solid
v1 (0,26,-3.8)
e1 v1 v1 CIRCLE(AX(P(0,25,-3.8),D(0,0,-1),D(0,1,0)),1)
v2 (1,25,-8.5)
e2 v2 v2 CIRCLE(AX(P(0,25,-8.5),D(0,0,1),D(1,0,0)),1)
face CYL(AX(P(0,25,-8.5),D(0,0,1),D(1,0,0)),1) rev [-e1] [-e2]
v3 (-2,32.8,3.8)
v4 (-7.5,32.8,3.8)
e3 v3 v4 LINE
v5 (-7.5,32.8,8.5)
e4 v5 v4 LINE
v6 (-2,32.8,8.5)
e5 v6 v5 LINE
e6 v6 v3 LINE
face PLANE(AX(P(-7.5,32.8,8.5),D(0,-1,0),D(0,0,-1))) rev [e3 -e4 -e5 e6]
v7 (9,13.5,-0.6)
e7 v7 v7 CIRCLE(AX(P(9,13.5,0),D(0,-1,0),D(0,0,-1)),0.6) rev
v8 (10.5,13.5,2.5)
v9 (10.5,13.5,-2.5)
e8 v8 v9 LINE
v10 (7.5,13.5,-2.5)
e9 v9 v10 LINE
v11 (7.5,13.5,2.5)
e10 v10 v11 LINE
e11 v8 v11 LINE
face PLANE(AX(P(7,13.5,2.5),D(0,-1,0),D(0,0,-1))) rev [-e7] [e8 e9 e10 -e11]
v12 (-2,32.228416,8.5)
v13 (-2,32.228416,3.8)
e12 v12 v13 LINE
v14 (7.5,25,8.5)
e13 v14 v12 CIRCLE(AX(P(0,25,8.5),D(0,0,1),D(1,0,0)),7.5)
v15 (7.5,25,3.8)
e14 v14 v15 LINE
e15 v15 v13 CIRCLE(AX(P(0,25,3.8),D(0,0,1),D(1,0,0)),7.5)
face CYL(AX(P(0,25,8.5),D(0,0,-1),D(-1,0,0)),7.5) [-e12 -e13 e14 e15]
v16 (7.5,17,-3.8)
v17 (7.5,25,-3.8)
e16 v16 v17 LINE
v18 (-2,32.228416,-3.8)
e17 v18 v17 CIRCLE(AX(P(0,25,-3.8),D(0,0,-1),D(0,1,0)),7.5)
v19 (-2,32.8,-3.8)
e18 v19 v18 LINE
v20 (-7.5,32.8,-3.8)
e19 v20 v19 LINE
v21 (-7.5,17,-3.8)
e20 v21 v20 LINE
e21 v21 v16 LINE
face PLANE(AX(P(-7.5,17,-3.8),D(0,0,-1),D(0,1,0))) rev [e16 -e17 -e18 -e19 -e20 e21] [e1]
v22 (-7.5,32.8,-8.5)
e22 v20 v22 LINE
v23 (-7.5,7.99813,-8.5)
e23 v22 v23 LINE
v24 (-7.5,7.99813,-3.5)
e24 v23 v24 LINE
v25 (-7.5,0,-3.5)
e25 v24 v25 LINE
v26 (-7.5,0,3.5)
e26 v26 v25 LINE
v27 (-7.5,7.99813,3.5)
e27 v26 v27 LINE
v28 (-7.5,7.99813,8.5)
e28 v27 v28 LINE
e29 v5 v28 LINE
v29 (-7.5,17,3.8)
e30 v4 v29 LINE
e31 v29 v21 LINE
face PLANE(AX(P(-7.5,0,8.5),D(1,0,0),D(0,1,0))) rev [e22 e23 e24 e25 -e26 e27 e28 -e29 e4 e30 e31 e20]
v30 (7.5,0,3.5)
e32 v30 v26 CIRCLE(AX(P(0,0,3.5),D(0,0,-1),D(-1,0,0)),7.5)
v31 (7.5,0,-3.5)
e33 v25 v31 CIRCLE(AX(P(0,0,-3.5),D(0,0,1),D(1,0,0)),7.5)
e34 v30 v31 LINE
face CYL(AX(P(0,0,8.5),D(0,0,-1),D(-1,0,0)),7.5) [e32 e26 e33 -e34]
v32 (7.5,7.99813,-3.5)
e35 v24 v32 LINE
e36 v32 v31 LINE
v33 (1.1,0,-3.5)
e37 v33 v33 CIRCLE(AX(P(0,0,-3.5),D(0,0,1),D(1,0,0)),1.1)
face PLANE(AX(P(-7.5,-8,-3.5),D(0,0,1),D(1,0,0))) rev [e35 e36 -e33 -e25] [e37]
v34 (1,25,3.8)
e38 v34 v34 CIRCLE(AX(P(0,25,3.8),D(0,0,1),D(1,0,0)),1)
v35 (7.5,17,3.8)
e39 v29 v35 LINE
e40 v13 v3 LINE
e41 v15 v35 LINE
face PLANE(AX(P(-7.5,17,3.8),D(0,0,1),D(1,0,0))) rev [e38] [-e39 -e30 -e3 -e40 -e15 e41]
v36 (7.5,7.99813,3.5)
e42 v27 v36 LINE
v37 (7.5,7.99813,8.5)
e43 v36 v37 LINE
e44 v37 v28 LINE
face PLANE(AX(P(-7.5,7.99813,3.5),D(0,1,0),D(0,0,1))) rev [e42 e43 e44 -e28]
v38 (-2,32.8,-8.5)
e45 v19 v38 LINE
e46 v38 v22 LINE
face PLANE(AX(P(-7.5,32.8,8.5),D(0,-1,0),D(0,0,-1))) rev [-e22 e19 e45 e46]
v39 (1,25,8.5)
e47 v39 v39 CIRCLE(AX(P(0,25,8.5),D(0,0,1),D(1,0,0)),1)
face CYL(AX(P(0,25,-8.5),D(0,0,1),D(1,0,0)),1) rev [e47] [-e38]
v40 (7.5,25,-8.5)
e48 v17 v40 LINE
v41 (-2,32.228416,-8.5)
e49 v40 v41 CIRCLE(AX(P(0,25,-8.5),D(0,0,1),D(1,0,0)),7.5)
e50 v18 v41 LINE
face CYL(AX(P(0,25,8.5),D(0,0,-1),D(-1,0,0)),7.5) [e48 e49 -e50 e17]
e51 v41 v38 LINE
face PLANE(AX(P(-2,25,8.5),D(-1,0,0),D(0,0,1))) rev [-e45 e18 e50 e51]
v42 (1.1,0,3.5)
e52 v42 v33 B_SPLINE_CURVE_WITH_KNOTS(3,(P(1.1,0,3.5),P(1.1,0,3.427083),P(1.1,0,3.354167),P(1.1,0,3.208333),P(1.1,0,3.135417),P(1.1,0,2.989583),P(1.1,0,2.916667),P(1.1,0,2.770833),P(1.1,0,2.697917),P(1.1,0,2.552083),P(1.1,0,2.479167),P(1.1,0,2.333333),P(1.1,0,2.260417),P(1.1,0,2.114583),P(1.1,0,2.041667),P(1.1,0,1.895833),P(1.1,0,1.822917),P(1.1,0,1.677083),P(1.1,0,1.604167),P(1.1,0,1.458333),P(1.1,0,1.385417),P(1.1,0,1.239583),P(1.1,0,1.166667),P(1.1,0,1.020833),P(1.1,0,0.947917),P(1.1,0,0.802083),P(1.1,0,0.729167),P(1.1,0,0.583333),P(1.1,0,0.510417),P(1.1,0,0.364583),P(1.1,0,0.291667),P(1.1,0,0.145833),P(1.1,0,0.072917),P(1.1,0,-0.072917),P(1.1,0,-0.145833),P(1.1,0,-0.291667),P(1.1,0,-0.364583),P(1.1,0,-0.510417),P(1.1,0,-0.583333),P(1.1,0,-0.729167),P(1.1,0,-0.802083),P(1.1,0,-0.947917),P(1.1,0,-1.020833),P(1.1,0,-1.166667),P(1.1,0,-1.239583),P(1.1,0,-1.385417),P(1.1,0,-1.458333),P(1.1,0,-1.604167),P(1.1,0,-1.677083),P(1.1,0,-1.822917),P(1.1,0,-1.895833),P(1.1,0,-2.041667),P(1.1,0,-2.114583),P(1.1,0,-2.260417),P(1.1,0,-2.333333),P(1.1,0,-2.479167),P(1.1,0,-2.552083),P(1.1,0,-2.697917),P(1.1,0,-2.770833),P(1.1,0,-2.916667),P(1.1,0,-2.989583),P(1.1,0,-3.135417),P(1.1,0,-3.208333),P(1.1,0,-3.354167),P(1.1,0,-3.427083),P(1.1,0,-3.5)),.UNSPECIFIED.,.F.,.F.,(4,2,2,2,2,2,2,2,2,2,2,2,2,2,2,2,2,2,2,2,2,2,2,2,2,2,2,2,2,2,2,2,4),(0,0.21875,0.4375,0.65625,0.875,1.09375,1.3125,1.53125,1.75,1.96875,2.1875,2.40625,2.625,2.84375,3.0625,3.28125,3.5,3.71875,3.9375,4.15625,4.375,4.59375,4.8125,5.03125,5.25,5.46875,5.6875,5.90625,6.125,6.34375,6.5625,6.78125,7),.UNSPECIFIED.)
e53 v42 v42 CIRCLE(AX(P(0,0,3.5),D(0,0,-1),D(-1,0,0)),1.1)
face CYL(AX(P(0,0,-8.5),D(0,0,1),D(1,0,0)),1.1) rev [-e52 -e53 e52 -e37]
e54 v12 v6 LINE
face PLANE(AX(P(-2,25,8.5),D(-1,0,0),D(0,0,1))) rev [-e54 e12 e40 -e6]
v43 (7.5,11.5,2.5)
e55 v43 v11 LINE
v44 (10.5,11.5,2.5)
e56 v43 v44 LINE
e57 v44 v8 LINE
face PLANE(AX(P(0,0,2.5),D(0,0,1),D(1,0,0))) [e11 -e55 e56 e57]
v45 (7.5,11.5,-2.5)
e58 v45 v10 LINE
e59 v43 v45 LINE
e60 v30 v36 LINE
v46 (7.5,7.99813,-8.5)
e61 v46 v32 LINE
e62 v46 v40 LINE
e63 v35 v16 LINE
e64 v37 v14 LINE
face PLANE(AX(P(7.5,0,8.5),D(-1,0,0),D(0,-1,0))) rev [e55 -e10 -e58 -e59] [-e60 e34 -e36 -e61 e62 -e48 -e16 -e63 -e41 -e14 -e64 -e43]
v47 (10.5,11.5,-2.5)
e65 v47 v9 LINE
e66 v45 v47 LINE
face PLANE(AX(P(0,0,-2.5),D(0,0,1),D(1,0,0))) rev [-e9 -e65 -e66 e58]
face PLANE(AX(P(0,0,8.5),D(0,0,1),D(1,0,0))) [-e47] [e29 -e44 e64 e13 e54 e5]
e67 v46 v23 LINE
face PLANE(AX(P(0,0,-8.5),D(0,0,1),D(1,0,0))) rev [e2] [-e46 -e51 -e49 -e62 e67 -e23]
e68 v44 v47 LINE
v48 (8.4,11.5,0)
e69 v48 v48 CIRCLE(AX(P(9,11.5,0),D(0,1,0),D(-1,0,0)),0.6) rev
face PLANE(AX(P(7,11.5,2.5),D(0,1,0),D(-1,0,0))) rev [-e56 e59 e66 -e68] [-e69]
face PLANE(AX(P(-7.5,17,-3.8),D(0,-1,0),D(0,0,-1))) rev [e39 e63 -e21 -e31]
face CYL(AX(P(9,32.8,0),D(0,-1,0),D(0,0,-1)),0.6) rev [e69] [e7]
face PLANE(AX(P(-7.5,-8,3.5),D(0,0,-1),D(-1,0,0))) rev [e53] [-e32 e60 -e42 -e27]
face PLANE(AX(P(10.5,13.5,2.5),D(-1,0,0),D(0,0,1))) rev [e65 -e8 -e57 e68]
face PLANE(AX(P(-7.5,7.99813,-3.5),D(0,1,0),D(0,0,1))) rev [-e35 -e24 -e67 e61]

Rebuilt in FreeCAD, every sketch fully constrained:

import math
import FreeCAD as App
import Part
import Sketcher


def add_polygon(sketch, points):
    """Adds a closed chain of lines whose ends are joined by coincident constraints."""
    first, n = sketch.GeometryCount, len(points)
    for a, b in zip(points, points[1:] + points[:1]):
        sketch.addGeometry(Part.LineSegment(App.Vector(*a, 0), App.Vector(*b, 0)), False)
    for i in range(n):
        sketch.addConstraint(Sketcher.Constraint("Coincident", first + i, 2, first + (i + 1) % n, 1))

doc = App.newDocument("Part")
body = doc.addObject("PartDesign::Body", "Body")

sketch1 = body.newObject("Sketcher::SketchObject", "Sketch")
sketch1.AttachmentSupport = (doc.getObject("XY_Plane"), [""])
sketch1.MapMode = "FlatFace"
sketch1.addGeometry([
    Part.LineSegment(App.Vector(-8, 25, 0), App.Vector(-8, 0, 0)),
    Part.ArcOfCircle(Part.Circle(App.Vector(0, 0, 0), App.Vector(0, 0, 1), 8), math.radians(180), math.radians(360)),
    Part.LineSegment(App.Vector(8, 0, 0), App.Vector(8, 25, 0)),
    Part.ArcOfCircle(Part.Circle(App.Vector(0, 25, 0), App.Vector(0, 0, 1), 8), math.radians(0), math.radians(180)),
], False)
sketch1.addConstraint([
    Sketcher.Constraint("Tangent", 0, 2, 1, 1),
    Sketcher.Constraint("Tangent", 1, 2, 2, 1),
    Sketcher.Constraint("Tangent", 2, 2, 3, 1),
    Sketcher.Constraint("Tangent", 3, 2, 0, 1),
    Sketcher.Constraint("Vertical", 0),
    Sketcher.Constraint("Vertical", 2),
    Sketcher.Constraint("Coincident", 1, 3, -1, 1),
    Sketcher.Constraint("Radius", 1, 7.5),
    Sketcher.Constraint("DistanceY", 0, 2, 0, 1, 25.0),
])
pad1 = body.newObject("PartDesign::Pad", "Pad")
pad1.Profile = sketch1
pad1.Length = 17
pad1.Midplane = True

sketch2 = body.newObject("Sketcher::SketchObject", "Sketch001")
sketch2.AttachmentSupport = (doc.getObject("YZ_Plane"), [""])
sketch2.MapMode = "FlatFace"
sketch2.AttachmentOffset = App.Placement(App.Vector(0, 0, 7.5), App.Rotation())
add_polygon(sketch2, [(8, -4), (-8, -4), (-8, -9), (8, -9)])
add_polygon(sketch2, [(8, 9), (-8, 9), (-8, 4), (8, 4)])
sketch2.addConstraint([
    Sketcher.Constraint("Horizontal", 0),
    Sketcher.Constraint("Vertical", 1),
    Sketcher.Constraint("Horizontal", 2),
    Sketcher.Constraint("Vertical", 3),
    Sketcher.Constraint("Horizontal", 4),
    Sketcher.Constraint("Vertical", 5),
    Sketcher.Constraint("Horizontal", 6),
    Sketcher.Constraint("Vertical", 7),
    Sketcher.Constraint("Symmetric", 1, 2, 4, 2, -1),
    Sketcher.Constraint("Symmetric", 3, 2, 6, 2, -1),
    Sketcher.Constraint("DistanceY", 1, 2, 1, 1, 5.5),
    Sketcher.Constraint("DistanceX", 0, 2, -1, 1, 8.0),
    Sketcher.Constraint("DistanceY", 1, 2, -1, 1, 9.0),
    Sketcher.Constraint("DistanceX", 0, 2, 0, 1, 15.99813),
])
pocket1 = body.newObject("PartDesign::Pocket", "Pocket")
pocket1.Profile = sketch2
pocket1.Type = "ThroughAll"
pocket1.Midplane = True

sketch3 = body.newObject("Sketcher::SketchObject", "Sketch002")
sketch3.AttachmentSupport = (doc.getObject("XY_Plane"), [""])
sketch3.MapMode = "FlatFace"
add_polygon(sketch3, [(-8, 33), (-8, 25), (-2, 25), (-2, 33)])
sketch3.addConstraint([
    Sketcher.Constraint("Vertical", 0),
    Sketcher.Constraint("Horizontal", 1),
    Sketcher.Constraint("Vertical", 2),
    Sketcher.Constraint("Horizontal", 3),
    Sketcher.Constraint("DistanceX", 1, 1, 1, 2, 5.5),
    Sketcher.Constraint("DistanceY", 0, 2, 0, 1, 7.8),
    Sketcher.Constraint("DistanceY", -1, 1, 0, 2, 25.0),
    Sketcher.Constraint("DistanceX", 1, 2, -1, 1, 2.0),
])
pad2 = body.newObject("PartDesign::Pad", "Pad001")
pad2.Profile = sketch3
pad2.Length = 17
pad2.Midplane = True

sketch4 = body.newObject("Sketcher::SketchObject", "Sketch003")
sketch4.AttachmentSupport = (doc.getObject("YZ_Plane"), [""])
sketch4.MapMode = "FlatFace"
add_polygon(sketch4, [(35, 4), (17, 4), (17, -4), (35, -4)])
sketch4.addConstraint([
    Sketcher.Constraint("Horizontal", 0),
    Sketcher.Constraint("Vertical", 1),
    Sketcher.Constraint("Horizontal", 2),
    Sketcher.Constraint("Vertical", 3),
    Sketcher.Constraint("DistanceX", 0, 2, 0, 1, 18.0),
    Sketcher.Constraint("DistanceY", 1, 2, 1, 1, 7.6),
    Sketcher.Constraint("DistanceX", -1, 1, 0, 2, 17.0),
    Sketcher.Constraint("DistanceY", -1, 1, 0, 2, 3.8),
])
pocket2 = body.newObject("PartDesign::Pocket", "Pocket001")
pocket2.Profile = sketch4
pocket2.Type = "ThroughAll"
pocket2.Midplane = True

sketch5 = body.newObject("Sketcher::SketchObject", "Sketch004")
sketch5.AttachmentSupport = (doc.getObject("XY_Plane"), [""])
sketch5.MapMode = "FlatFace"
sketch5.addGeometry([
    Part.Circle(App.Vector(0, 0, 0), App.Vector(0, 0, 1), 1.1),
    Part.Circle(App.Vector(0, 25, 0), App.Vector(0, 0, 1), 1),
], False)
sketch5.addConstraint([
    Sketcher.Constraint("Coincident", 0, 3, -1, 1),
    Sketcher.Constraint("PointOnObject", 1, 3, -2),
    Sketcher.Constraint("Diameter", 1, 2.0),
    Sketcher.Constraint("Diameter", 0, 2.2),
    Sketcher.Constraint("DistanceY", -1, 1, 1, 3, 25.0),
])
pocket3 = body.newObject("PartDesign::Pocket", "Pocket002")
pocket3.Profile = sketch5
pocket3.Type = "ThroughAll"
pocket3.Midplane = True

sketch6 = body.newObject("Sketcher::SketchObject", "Sketch005")
sketch6.AttachmentSupport = (doc.getObject("XY_Plane"), [""])
sketch6.MapMode = "FlatFace"
add_polygon(sketch6, [(7, 13.5), (7, 11.5), (10.5, 11.5), (10.5, 13.5)])
sketch6.addConstraint([
    Sketcher.Constraint("Vertical", 0),
    Sketcher.Constraint("Horizontal", 1),
    Sketcher.Constraint("Vertical", 2),
    Sketcher.Constraint("Horizontal", 3),
    Sketcher.Constraint("DistanceY", 0, 2, 0, 1, 2.0),
    Sketcher.Constraint("DistanceX", 1, 1, 1, 2, 3.5),
    Sketcher.Constraint("DistanceX", -1, 1, 0, 2, 7.0),
    Sketcher.Constraint("DistanceY", -1, 1, 0, 2, 11.5),
])
pad3 = body.newObject("PartDesign::Pad", "Pad002")
pad3.Profile = sketch6
pad3.Length = 5
pad3.Midplane = True

sketch7 = body.newObject("Sketcher::SketchObject", "Sketch006")
sketch7.AttachmentSupport = (doc.getObject("XZ_Plane"), [""])
sketch7.MapMode = "FlatFace"
sketch7.addGeometry(Part.Circle(App.Vector(9, 0, 0), App.Vector(0, 0, 1), 0.6), False)
sketch7.addConstraint([
    Sketcher.Constraint("PointOnObject", 0, 3, -1),
    Sketcher.Constraint("Diameter", 0, 1.2),
    Sketcher.Constraint("DistanceX", -1, 1, 0, 3, 9.0),
])
pocket4 = body.newObject("PartDesign::Pocket", "Pocket003")
pocket4.Profile = sketch7
pocket4.Type = "ThroughAll"
pocket4.Midplane = True

doc.recompute()
